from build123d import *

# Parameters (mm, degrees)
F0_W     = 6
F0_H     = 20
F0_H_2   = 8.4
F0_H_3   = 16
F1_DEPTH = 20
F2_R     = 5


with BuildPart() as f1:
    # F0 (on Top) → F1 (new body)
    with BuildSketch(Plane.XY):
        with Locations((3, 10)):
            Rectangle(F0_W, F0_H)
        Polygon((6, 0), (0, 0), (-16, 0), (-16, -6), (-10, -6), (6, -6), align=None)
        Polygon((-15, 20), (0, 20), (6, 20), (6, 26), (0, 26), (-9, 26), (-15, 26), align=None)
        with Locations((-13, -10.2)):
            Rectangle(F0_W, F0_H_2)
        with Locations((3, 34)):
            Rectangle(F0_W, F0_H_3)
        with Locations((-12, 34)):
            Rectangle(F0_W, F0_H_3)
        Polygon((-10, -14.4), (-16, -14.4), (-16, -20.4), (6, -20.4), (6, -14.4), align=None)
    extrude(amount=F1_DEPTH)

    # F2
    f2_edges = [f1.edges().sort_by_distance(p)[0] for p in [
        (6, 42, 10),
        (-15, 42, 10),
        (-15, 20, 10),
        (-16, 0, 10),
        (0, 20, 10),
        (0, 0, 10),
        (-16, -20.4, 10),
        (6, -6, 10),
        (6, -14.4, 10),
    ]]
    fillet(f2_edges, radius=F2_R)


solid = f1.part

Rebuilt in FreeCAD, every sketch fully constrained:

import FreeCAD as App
import Part
import Sketcher
from FreeCAD import Vector
Q = App.Units.Quantity


def edges_at(feature, points):
    """Names of the edges that pass closest to the given points."""
    edges = feature.Shape.Edges
    near = lambda p: min(range(len(edges)), key=lambda i: edges[i].distToShape(Part.Vertex(*p))[0])
    return sorted({f"Edge{near(p) + 1}" for p in points})


def add_polygon(sketch, points):
    """Adds a closed chain of lines whose ends are joined by coincident constraints."""
    first, n = sketch.GeometryCount, len(points)
    for a, b in zip(points, points[1:] + points[:1]):
        sketch.addGeometry(Part.LineSegment(App.Vector(*a, 0), App.Vector(*b, 0)), False)
    for i in range(n):
        sketch.addConstraint(Sketcher.Constraint("Coincident", first + i, 2, first + (i + 1) % n, 1))

doc = App.newDocument("Part")
params = doc.addObject("Spreadsheet::Sheet", "Params")
for row, (alias, value) in enumerate([
    ("sketch1_width", "16 mm"),
    ("sketch1_width2", "22 mm"),
    ("sketch1_width3", "9 mm"),
    ("sketch1_height", "20 mm"),
    ("sketch1_height2", "48 mm"),
    ("pad1_length", "20 mm"),
    ("fillet_radius", "5 mm"),
], start=1):
    params.set(f"A{row}", alias)
    params.set(f"B{row}", "=" + value)
    params.setAlias(f"B{row}", alias)

body = doc.addObject("PartDesign::Body", "Body")

# Sketch on XY plane
sketch1 = doc.addObject("Sketcher::SketchObject", "Sketch")
body.addObject(sketch1)
sketch1.AttachmentSupport = (doc.XY_Plane, [""])
sketch1.MapMode = "FlatFace"
add_polygon(sketch1, [(0, 20), (0, 0), (-16, 0), (-16, -20), (6, -20), (6, -14), (-10, -14), (-10, -6), (6, -6), (6, 42), (0, 42), (0, 26), (-9, 26), (-9, 42), (-15, 42), (-15, 20)])  # lines 0-15
sketch1.addConstraint(Sketcher.Constraint("Vertical", 0))
sketch1.addConstraint(Sketcher.Constraint("Horizontal", 1))
sketch1.addConstraint(Sketcher.Constraint("Vertical", 2))
sketch1.addConstraint(Sketcher.Constraint("Horizontal", 3))
sketch1.addConstraint(Sketcher.Constraint("Vertical", 4))
sketch1.addConstraint(Sketcher.Constraint("Horizontal", 5))
sketch1.addConstraint(Sketcher.Constraint("Vertical", 6))
sketch1.addConstraint(Sketcher.Constraint("Horizontal", 7))
sketch1.addConstraint(Sketcher.Constraint("Vertical", 8))
sketch1.addConstraint(Sketcher.Constraint("Horizontal", 9))
sketch1.addConstraint(Sketcher.Constraint("Vertical", 10))
sketch1.addConstraint(Sketcher.Constraint("Horizontal", 11))
sketch1.addConstraint(Sketcher.Constraint("Vertical", 12))
sketch1.addConstraint(Sketcher.Constraint("Horizontal", 13))
sketch1.addConstraint(Sketcher.Constraint("Vertical", 14))
sketch1.addConstraint(Sketcher.Constraint("Horizontal", 15))
sketch1.addConstraint(Sketcher.Constraint("Coincident", 0, 2, -1, 1))
sketch1.addConstraint(Sketcher.Constraint("PointOnObject", 9, 2, -2))
sketch1.addConstraint(Sketcher.Constraint("Horizontal", 9, 2, 12, 2))
sketch1.addConstraint(Sketcher.Constraint("Vertical", 4, 2, 7, 2))
sketch1.addConstraint(Sketcher.Constraint("Equal", 1, 5))
sketch1.addConstraint(Sketcher.Constraint("Equal", 9, 13))
sketch1.addConstraint(Sketcher.Constraint("Equal", 13, 4))
sketch1.addConstraint(Sketcher.Constraint("Equal", 7, 10))
sketch1.addConstraint(Sketcher.Constraint("Equal", 3, 14))
sketch1.addConstraint(Sketcher.Constraint("DistanceX", 1, 2, 1, 1, Q("16 mm")))
sketch1.addConstraint(Sketcher.Constraint("DistanceX", 3, 1, 3, 2, Q("22 mm")))
sketch1.addConstraint(Sketcher.Constraint("DistanceX", 11, 2, 11, 1, Q("9 mm")))
sketch1.addConstraint(Sketcher.Constraint("DistanceY", 0, 2, 0, 1, Q("20 mm")))
sketch1.addConstraint(Sketcher.Constraint("DistanceY", 8, 1, 8, 2, Q("48 mm")))
sketch1.addConstraint(Sketcher.Constraint("DistanceY", 2, 2, 2, 1, Q("20.4 mm")))
sketch1.setExpression("Constraints[41]", "Params.sketch1_width")
sketch1.setExpression("Constraints[42]", "Params.sketch1_width2")
sketch1.setExpression("Constraints[43]", "Params.sketch1_width3")
sketch1.setExpression("Constraints[44]", "Params.sketch1_height")
sketch1.setExpression("Constraints[45]", "Params.sketch1_height2")
pad1 = doc.addObject("PartDesign::Pad", "Pad")
body.addObject(pad1)
pad1.Profile = sketch1
pad1.setExpression("Length", "Params.pad1_length")
doc.recompute()

fillet = doc.addObject("PartDesign::Fillet", "Fillet")
body.addObject(fillet)
fillet.Base = (pad1, edges_at(pad1, [
    (6, 42, 10),
    (-15, 42, 10),
    (-15, 20, 10),
    (-16, 0, 10),
    (0, 20, 10),
    (0, 0, 10),
    (-16, -20.4, 10),
    (6, -6, 10),
    (6, -14.4, 10),
]))
fillet.setExpression("Radius", "Params.fillet_radius")

doc.recompute()
